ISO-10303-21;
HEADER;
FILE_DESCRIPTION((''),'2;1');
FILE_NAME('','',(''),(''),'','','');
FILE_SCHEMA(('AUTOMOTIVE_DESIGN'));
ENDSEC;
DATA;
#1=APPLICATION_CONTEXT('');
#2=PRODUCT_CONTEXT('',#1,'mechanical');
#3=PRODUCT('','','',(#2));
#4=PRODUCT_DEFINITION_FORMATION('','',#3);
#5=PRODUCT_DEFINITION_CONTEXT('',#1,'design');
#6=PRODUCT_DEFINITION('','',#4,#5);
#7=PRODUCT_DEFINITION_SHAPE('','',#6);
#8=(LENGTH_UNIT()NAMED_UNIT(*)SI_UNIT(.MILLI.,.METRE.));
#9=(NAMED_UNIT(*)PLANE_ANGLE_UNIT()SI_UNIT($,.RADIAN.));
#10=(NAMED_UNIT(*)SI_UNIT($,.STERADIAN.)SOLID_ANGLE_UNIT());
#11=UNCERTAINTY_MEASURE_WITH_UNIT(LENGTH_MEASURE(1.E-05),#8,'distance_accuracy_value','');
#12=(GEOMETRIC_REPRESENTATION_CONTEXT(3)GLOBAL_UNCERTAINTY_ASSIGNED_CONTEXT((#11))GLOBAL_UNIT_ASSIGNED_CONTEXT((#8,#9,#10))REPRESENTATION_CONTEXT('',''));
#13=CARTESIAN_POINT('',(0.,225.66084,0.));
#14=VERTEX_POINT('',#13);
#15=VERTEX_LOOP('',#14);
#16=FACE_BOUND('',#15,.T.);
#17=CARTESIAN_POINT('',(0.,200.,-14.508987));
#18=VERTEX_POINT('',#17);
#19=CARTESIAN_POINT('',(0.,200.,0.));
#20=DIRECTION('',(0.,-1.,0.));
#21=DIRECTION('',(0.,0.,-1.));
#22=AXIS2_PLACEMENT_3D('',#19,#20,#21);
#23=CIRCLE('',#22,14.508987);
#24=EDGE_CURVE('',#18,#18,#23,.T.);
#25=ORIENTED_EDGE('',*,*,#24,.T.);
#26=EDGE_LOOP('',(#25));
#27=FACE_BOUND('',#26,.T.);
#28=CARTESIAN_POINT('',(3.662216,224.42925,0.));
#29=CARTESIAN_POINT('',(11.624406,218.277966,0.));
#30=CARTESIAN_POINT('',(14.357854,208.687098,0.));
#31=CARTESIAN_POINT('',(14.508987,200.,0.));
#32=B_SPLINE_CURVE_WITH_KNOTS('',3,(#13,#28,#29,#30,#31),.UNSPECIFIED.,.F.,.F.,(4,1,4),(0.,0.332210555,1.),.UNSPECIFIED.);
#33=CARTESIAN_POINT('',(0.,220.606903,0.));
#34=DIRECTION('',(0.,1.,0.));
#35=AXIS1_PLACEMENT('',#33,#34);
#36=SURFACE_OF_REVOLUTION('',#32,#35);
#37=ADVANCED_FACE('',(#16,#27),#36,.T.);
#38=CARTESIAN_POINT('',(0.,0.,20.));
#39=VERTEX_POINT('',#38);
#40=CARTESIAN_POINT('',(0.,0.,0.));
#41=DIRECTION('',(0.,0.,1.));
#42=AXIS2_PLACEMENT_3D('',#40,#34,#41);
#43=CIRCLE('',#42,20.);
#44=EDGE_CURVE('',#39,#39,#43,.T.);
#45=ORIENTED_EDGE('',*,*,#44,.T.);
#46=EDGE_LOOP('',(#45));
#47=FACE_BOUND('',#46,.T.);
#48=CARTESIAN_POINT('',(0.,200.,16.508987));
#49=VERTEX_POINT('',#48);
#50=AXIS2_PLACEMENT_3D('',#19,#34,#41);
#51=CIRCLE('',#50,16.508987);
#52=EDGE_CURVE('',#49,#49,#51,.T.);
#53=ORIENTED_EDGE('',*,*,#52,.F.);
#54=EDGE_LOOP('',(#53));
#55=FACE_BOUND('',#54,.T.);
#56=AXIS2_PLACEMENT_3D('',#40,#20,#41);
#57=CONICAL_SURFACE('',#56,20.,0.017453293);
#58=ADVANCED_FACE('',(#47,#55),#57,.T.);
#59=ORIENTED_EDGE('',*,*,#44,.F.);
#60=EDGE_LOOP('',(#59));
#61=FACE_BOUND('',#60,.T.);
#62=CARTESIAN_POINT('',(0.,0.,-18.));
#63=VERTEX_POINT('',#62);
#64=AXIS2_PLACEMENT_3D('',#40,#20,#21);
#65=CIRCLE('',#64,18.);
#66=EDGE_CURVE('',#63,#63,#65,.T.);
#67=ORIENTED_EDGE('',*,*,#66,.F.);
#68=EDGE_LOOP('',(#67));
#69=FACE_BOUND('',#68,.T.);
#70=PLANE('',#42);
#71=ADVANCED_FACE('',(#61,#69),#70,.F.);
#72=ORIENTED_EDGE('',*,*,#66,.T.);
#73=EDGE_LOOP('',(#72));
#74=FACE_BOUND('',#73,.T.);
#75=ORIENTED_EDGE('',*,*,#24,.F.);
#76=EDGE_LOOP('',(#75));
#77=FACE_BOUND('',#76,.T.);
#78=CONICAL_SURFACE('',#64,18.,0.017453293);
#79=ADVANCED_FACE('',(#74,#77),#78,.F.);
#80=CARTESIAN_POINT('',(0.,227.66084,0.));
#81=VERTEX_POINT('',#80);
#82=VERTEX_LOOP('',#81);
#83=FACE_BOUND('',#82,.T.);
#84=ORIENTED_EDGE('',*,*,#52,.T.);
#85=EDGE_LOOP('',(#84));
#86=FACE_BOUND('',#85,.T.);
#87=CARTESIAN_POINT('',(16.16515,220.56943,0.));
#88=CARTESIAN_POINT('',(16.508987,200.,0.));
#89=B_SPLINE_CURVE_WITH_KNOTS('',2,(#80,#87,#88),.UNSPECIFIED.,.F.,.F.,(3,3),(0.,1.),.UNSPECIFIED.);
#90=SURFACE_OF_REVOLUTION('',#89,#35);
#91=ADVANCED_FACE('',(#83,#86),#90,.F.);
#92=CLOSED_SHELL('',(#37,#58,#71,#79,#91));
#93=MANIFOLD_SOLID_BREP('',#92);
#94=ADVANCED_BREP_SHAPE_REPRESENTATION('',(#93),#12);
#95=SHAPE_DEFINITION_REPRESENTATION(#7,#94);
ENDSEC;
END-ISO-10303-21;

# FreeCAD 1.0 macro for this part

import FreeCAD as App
import Part
import Sketcher
from FreeCAD import Vector
Q = App.Units.Quantity

doc = App.newDocument("Part")
params = doc.addObject("Spreadsheet::Sheet", "Params")
for row, (alias, value) in enumerate([
    ("sketch1_diameter", "40 mm"),
    ("pad1_length", "200 mm"),
    ("pad1_taper", "-1 deg"),
    ("sketch2_diameter", "36 mm"),
    ("pocket1_length", "200 mm"),
    ("pocket1_taper", "-1 deg"),
    ("revolution_angle", "360 deg"),
], start=1):
    params.set(f"A{row}", alias)
    params.set(f"B{row}", "=" + value)
    params.setAlias(f"B{row}", alias)

body = doc.addObject("PartDesign::Body", "Body")

# Sketch on XZ plane
sketch1 = body.newObject("Sketcher::SketchObject", "Sketch")
sketch1.AttachmentSupport = (doc.getObject("XZ_Plane"), [""])
sketch1.MapMode = "FlatFace"
sketch1.addGeometry(Part.Circle(Vector(0, 0, 0), Vector(0, 0, 1), 20), False)
sketch1.addConstraint([
    Sketcher.Constraint("Coincident", 0, 3, -1, 1),
    Sketcher.Constraint("Diameter", 0, Q("40 mm")),
])
sketch1.setExpression("Constraints[1]", "Params.sketch1_diameter")
pad1 = body.newObject("PartDesign::Pad", "Pad")
pad1.Profile = sketch1
pad1.setExpression("Length", "Params.pad1_length")
pad1.Reversed = True
pad1.setExpression("TaperAngle", "Params.pad1_taper")

# Sketch on XZ plane
sketch2 = body.newObject("Sketcher::SketchObject", "Sketch001")
sketch2.AttachmentSupport = (doc.getObject("XZ_Plane"), [""])
sketch2.MapMode = "FlatFace"
sketch2.addGeometry(Part.Circle(Vector(0, 0, 0), Vector(0, 0, 1), 18), False)
sketch2.addConstraint([
    Sketcher.Constraint("Coincident", 0, 3, -1, 1),
    Sketcher.Constraint("Diameter", 0, Q("36 mm")),
])
sketch2.setExpression("Constraints[1]", "Params.sketch2_diameter")
pocket1 = body.newObject("PartDesign::Pocket", "Pocket")
pocket1.Profile = sketch2
pocket1.setExpression("Length", "Params.pocket1_length")
pocket1.setExpression("TaperAngle", "Params.pocket1_taper")

# Sketch on XY plane
sketch3 = body.newObject("Sketcher::SketchObject", "Sketch002")
sketch3.AttachmentSupport = (doc.getObject("XY_Plane"), [""])
sketch3.MapMode = "FlatFace"
sketch3.addGeometry([
    Part.LineSegment(Vector(0, 227.66084, 0), Vector(0, 225.66084, 0)),
    Part.BSplineCurve([Vector(0, 225.66084, 0), Vector(3.662216, 224.42925, 0), Vector(11.624406, 218.277966, 0), Vector(14.357854, 208.687098, 0), Vector(14.508987, 200, 0)], [4, 1, 4], [0, 0.332210555, 1], False, 3, [1, 1, 1, 1, 1], False),
    Part.LineSegment(Vector(14.508987, 200, 0), Vector(16.508987, 200, 0)),
    Part.BSplineCurve([Vector(0, 227.66084, 0), Vector(16.16515, 220.56943, 0), Vector(16.508987, 200, 0)], [3, 3], [0, 1], False, 2, [1, 1, 1], False),
], False)
sketch3.addConstraint([
    Sketcher.Constraint("Block", 1),
    Sketcher.Constraint("Block", 3),
    Sketcher.Constraint("Coincident", 0, 2, 1, 1),
    Sketcher.Constraint("Coincident", 1, 2, 2, 1),
    Sketcher.Constraint("Coincident", 2, 2, 3, 2),
    Sketcher.Constraint("Coincident", 3, 1, 0, 1),
])
revolution = body.newObject("PartDesign::Revolution", "Revolution")
revolution.Profile = sketch3
revolution.ReferenceAxis = (sketch3, ["V_Axis"])
revolution.setExpression("Angle", "Params.revolution_angle")

doc.recompute()
